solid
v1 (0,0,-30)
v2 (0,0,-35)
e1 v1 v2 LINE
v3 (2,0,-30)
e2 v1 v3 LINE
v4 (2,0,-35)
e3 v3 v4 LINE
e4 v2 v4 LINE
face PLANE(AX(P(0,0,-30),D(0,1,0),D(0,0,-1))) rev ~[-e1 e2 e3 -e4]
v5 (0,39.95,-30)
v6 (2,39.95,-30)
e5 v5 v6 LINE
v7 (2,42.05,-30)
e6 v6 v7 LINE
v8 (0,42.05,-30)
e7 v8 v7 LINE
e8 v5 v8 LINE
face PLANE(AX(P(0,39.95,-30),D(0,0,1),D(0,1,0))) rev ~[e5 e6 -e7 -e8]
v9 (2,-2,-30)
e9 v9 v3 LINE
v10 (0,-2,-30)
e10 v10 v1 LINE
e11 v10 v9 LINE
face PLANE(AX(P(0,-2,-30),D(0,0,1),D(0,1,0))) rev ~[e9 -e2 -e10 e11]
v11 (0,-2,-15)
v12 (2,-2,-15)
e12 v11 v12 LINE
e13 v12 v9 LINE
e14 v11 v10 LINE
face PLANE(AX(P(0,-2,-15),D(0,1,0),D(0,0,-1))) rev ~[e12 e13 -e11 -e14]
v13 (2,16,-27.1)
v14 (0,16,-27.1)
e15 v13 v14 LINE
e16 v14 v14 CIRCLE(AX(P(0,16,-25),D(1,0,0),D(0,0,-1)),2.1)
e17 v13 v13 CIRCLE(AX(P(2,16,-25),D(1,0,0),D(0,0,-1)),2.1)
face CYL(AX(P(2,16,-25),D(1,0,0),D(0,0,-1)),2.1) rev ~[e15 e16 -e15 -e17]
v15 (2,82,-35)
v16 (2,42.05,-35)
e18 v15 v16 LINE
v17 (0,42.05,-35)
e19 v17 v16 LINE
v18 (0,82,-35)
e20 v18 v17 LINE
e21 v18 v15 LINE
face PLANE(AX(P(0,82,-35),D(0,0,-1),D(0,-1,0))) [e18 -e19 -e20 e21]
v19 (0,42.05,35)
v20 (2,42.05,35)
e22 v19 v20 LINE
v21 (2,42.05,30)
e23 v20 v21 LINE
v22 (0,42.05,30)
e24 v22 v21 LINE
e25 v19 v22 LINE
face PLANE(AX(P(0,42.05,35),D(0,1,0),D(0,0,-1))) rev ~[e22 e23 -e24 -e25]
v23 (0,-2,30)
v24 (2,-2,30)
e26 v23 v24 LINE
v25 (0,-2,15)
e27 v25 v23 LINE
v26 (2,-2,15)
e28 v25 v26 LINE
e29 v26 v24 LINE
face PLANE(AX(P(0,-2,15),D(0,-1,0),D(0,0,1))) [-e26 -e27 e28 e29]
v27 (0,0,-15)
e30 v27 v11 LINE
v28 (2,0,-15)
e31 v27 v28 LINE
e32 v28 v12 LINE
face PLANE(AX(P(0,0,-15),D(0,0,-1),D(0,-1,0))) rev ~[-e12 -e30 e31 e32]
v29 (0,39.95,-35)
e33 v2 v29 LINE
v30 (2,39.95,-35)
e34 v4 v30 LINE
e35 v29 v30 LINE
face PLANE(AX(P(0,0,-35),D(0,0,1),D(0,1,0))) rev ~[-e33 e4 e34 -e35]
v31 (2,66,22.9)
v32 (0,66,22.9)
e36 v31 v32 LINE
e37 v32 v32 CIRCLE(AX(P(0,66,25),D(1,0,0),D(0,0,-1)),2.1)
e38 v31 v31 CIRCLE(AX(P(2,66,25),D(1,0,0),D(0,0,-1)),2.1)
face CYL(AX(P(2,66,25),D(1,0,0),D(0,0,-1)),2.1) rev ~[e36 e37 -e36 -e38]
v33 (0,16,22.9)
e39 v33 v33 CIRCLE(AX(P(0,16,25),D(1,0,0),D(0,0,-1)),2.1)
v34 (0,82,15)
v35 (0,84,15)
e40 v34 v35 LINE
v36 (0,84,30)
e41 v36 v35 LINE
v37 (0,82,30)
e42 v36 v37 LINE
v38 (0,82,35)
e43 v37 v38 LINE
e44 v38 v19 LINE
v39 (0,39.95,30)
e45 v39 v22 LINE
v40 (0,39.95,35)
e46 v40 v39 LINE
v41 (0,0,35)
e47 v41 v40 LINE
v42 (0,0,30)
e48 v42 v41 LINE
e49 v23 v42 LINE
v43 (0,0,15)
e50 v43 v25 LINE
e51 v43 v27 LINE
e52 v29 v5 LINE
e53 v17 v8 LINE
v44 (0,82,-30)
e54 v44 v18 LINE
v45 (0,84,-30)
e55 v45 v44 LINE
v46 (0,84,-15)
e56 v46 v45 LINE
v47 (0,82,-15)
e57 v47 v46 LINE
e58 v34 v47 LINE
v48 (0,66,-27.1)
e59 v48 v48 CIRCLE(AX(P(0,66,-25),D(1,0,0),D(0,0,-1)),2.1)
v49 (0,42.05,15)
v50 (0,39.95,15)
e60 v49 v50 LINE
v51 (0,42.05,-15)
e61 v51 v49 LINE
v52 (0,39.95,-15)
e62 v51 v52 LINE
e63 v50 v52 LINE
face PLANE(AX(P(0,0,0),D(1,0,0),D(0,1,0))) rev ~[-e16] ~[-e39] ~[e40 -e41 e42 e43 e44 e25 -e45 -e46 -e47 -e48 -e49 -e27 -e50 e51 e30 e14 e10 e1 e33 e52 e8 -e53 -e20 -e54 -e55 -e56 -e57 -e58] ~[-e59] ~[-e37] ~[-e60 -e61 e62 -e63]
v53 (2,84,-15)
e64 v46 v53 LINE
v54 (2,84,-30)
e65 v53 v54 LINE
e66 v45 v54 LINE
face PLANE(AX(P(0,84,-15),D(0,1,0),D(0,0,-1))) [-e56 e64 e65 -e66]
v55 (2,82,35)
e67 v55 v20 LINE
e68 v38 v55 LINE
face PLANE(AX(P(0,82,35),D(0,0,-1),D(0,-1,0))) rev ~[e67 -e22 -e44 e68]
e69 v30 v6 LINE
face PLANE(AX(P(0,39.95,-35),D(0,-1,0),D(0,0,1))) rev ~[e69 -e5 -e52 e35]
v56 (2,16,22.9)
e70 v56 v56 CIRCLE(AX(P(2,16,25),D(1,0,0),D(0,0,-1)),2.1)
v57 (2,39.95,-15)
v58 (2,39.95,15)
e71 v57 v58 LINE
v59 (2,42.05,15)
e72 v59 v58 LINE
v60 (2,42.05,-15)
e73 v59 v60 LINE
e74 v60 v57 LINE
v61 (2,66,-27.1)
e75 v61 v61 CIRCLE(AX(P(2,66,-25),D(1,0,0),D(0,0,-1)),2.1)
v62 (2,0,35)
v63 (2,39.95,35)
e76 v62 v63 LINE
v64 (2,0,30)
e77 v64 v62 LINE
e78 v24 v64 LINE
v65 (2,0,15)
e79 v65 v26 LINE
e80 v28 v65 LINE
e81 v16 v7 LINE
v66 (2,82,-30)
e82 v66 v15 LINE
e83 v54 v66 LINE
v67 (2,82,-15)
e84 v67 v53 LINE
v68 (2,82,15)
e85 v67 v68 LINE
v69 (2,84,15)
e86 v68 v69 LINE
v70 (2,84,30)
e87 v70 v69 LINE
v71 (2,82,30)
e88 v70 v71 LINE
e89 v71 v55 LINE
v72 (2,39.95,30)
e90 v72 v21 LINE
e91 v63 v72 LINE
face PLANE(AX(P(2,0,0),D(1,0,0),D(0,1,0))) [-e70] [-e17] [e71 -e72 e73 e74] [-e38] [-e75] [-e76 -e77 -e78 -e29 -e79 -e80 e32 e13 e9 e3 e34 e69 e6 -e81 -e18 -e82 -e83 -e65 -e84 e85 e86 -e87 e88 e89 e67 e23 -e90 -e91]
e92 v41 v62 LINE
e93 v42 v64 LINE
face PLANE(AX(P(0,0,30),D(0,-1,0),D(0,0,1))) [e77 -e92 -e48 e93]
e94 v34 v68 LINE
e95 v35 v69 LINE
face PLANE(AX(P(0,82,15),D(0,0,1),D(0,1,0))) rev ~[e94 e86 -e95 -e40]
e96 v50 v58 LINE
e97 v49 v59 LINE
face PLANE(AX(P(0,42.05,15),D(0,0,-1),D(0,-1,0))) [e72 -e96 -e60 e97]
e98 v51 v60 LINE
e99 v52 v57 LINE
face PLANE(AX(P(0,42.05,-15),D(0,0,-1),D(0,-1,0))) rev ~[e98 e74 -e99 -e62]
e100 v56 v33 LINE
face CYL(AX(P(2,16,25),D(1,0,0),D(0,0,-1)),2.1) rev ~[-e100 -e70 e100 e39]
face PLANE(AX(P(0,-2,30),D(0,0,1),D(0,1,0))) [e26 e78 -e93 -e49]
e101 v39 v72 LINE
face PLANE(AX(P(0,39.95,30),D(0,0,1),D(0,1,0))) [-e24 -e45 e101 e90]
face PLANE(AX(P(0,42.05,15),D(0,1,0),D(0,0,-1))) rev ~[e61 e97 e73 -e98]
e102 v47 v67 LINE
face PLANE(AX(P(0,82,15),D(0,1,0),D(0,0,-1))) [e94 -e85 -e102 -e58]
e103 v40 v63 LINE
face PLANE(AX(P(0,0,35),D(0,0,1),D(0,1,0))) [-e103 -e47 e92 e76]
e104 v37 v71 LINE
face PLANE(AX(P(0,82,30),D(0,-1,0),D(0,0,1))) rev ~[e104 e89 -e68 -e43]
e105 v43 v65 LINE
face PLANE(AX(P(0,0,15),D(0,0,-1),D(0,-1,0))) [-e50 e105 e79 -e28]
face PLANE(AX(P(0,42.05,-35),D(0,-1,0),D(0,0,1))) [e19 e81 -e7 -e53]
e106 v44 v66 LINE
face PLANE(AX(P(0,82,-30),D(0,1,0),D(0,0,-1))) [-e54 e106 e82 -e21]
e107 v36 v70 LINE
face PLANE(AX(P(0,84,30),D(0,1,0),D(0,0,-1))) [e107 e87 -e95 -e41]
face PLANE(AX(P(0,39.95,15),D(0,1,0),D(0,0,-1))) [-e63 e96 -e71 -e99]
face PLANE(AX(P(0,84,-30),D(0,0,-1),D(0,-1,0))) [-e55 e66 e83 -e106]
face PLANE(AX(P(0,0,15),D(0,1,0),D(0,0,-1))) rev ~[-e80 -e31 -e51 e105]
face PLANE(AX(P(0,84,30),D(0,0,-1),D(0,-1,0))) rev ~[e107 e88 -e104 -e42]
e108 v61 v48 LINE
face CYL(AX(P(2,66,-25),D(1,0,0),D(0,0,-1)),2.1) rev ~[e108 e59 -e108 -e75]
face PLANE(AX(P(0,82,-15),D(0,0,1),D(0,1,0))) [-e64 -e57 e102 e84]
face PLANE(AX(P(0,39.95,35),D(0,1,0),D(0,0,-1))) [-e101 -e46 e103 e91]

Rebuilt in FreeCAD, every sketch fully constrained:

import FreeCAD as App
import Part
import Sketcher


def add_polygon(sketch, points):
    """Adds a closed chain of lines whose ends are joined by coincident constraints."""
    first, n = sketch.GeometryCount, len(points)
    for a, b in zip(points, points[1:] + points[:1]):
        sketch.addGeometry(Part.LineSegment(App.Vector(*a, 0), App.Vector(*b, 0)), False)
    for i in range(n):
        sketch.addConstraint(Sketcher.Constraint("Coincident", first + i, 2, first + (i + 1) % n, 1))

doc = App.newDocument("Part")
body = doc.addObject("PartDesign::Body", "Body")

sketch1 = doc.addObject("Sketcher::SketchObject", "Sketch")
body.addObject(sketch1)
sketch1.AttachmentSupport = (doc.YZ_Plane, [""])
sketch1.MapMode = "FlatFace"
add_polygon(sketch1, [(-2, 15), (0, 15), (0, -15), (-2, -15), (-2, -30), (0, -30), (0, -35), (40, -35), (40, -30), (42, -30), (42, -35), (82, -35), (82, -30), (84, -30), (84, -15), (82, -15), (82, 15), (84, 15), (84, 30), (82, 30), (82, 35), (42, 35), (42, 30), (40, 30), (40, 35), (0, 35), (0, 30), (-2, 30)])
add_polygon(sketch1, [(40, 15), (42, 15), (42, -15), (40, -15)])
sketch1.addConstraint([
    Sketcher.Constraint("Horizontal", 0),
    Sketcher.Constraint("Vertical", 1),
    Sketcher.Constraint("Horizontal", 2),
    Sketcher.Constraint("Vertical", 3),
    Sketcher.Constraint("Horizontal", 4),
    Sketcher.Constraint("Vertical", 5),
    Sketcher.Constraint("Horizontal", 6),
    Sketcher.Constraint("Vertical", 7),
    Sketcher.Constraint("Horizontal", 8),
    Sketcher.Constraint("Vertical", 9),
    Sketcher.Constraint("Horizontal", 10),
    Sketcher.Constraint("Vertical", 11),
    Sketcher.Constraint("Horizontal", 12),
    Sketcher.Constraint("Vertical", 13),
    Sketcher.Constraint("Horizontal", 14),
    Sketcher.Constraint("Vertical", 15),
    Sketcher.Constraint("Horizontal", 16),
    Sketcher.Constraint("Vertical", 17),
    Sketcher.Constraint("Horizontal", 18),
    Sketcher.Constraint("Vertical", 19),
    Sketcher.Constraint("Horizontal", 20),
    Sketcher.Constraint("Vertical", 21),
    Sketcher.Constraint("Horizontal", 22),
    Sketcher.Constraint("Vertical", 23),
    Sketcher.Constraint("Horizontal", 24),
    Sketcher.Constraint("Vertical", 25),
    Sketcher.Constraint("Horizontal", 26),
    Sketcher.Constraint("Vertical", 27),
    Sketcher.Constraint("Horizontal", 28),
    Sketcher.Constraint("Vertical", 29),
    Sketcher.Constraint("Horizontal", 30),
    Sketcher.Constraint("Vertical", 31),
    Sketcher.Constraint("Symmetric", 0, 2, 1, 2, -1, 1),
    Sketcher.Constraint("Symmetric", 5, 2, 24, 2, -1, 1),
    Sketcher.Constraint("Symmetric", 13, 2, 16, 2, -1),
    Sketcher.Constraint("Symmetric", 11, 2, 18, 2, -1),
    Sketcher.Constraint("Symmetric", 9, 2, 20, 2, -1),
    Sketcher.Constraint("Symmetric", 7, 2, 22, 2, -1),
    Sketcher.Constraint("Symmetric", 4, 2, 25, 2, -1),
    Sketcher.Constraint("Horizontal", 4, 2, 7, 2),
    Sketcher.Constraint("Horizontal", 6, 2, 9, 2),
    Sketcher.Constraint("Horizontal", 8, 2, 11, 2),
    Sketcher.Constraint("Horizontal", 2, 2, 13, 2),
    Sketcher.Constraint("Horizontal", 27, 2, 28, 2),
    Sketcher.Constraint("Horizontal", 14, 2, 29, 2),
    Sketcher.Constraint("Vertical", 11, 2, 14, 2),
    Sketcher.Constraint("Vertical", 3, 2, 26, 2),
    Sketcher.Constraint("Vertical", 21, 2, 28, 2),
    Sketcher.Constraint("Vertical", 23, 2, 30, 2),
    Sketcher.Constraint("Equal", 6, 10),
    Sketcher.Constraint("Equal", 4, 12),
    Sketcher.Constraint("DistanceX", 0, 1, 0, 2, 2.0),
    Sketcher.Constraint("DistanceY", 3, 2, 3, 1, 15.0),
    Sketcher.Constraint("DistanceX", 8, 1, 8, 2, 2.1),
    Sketcher.Constraint("DistanceY", -1, 1, 0, 2, 15.0),
    Sketcher.Constraint("DistanceY", 5, 2, -1, 1, 35.0),
    Sketcher.Constraint("DistanceX", -1, 1, 10, 2, 82.0),
])
pad1 = doc.addObject("PartDesign::Pad", "Pad")
body.addObject(pad1)
pad1.Profile = sketch1
pad1.Length = 2

sketch2 = doc.addObject("Sketcher::SketchObject", "Sketch001")
body.addObject(sketch2)
sketch2.AttachmentSupport = (doc.YZ_Plane, [""])
sketch2.MapMode = "FlatFace"
sketch2.AttachmentOffset = App.Placement(App.Vector(0, 0, 2), App.Rotation())
sketch2.addGeometry([
    Part.Circle(App.Vector(66, 25, 0), App.Vector(0, 0, 1), 2.1),
    Part.Circle(App.Vector(66, -25, 0), App.Vector(0, 0, 1), 2.1),
    Part.Circle(App.Vector(16, -25, 0), App.Vector(0, 0, 1), 2.1),
    Part.Circle(App.Vector(16, 25, 0), App.Vector(0, 0, 1), 2.1),
], False)
sketch2.addConstraint([
    Sketcher.Constraint("Equal", 0, 1),
    Sketcher.Constraint("Equal", 1, 2),
    Sketcher.Constraint("Equal", 2, 3),
    Sketcher.Constraint("Symmetric", 0, 3, 1, 3, -1),
    Sketcher.Constraint("Symmetric", 2, 3, 3, 3, -1),
    Sketcher.Constraint("Horizontal", 1, 3, 2, 3),
    Sketcher.Constraint("Diameter", 0, 4.2),
    Sketcher.Constraint("DistanceY", 1, 3, 0, 3, 50.0),
    Sketcher.Constraint("DistanceX", 2, 3, 1, 3, 50.0),
    Sketcher.Constraint("DistanceX", -1, 1, 0, 3, 66.0),
])
pocket1 = doc.addObject("PartDesign::Pocket", "Pocket")
body.addObject(pocket1)
pocket1.Profile = sketch2
pocket1.Length = 2

doc.recompute()
